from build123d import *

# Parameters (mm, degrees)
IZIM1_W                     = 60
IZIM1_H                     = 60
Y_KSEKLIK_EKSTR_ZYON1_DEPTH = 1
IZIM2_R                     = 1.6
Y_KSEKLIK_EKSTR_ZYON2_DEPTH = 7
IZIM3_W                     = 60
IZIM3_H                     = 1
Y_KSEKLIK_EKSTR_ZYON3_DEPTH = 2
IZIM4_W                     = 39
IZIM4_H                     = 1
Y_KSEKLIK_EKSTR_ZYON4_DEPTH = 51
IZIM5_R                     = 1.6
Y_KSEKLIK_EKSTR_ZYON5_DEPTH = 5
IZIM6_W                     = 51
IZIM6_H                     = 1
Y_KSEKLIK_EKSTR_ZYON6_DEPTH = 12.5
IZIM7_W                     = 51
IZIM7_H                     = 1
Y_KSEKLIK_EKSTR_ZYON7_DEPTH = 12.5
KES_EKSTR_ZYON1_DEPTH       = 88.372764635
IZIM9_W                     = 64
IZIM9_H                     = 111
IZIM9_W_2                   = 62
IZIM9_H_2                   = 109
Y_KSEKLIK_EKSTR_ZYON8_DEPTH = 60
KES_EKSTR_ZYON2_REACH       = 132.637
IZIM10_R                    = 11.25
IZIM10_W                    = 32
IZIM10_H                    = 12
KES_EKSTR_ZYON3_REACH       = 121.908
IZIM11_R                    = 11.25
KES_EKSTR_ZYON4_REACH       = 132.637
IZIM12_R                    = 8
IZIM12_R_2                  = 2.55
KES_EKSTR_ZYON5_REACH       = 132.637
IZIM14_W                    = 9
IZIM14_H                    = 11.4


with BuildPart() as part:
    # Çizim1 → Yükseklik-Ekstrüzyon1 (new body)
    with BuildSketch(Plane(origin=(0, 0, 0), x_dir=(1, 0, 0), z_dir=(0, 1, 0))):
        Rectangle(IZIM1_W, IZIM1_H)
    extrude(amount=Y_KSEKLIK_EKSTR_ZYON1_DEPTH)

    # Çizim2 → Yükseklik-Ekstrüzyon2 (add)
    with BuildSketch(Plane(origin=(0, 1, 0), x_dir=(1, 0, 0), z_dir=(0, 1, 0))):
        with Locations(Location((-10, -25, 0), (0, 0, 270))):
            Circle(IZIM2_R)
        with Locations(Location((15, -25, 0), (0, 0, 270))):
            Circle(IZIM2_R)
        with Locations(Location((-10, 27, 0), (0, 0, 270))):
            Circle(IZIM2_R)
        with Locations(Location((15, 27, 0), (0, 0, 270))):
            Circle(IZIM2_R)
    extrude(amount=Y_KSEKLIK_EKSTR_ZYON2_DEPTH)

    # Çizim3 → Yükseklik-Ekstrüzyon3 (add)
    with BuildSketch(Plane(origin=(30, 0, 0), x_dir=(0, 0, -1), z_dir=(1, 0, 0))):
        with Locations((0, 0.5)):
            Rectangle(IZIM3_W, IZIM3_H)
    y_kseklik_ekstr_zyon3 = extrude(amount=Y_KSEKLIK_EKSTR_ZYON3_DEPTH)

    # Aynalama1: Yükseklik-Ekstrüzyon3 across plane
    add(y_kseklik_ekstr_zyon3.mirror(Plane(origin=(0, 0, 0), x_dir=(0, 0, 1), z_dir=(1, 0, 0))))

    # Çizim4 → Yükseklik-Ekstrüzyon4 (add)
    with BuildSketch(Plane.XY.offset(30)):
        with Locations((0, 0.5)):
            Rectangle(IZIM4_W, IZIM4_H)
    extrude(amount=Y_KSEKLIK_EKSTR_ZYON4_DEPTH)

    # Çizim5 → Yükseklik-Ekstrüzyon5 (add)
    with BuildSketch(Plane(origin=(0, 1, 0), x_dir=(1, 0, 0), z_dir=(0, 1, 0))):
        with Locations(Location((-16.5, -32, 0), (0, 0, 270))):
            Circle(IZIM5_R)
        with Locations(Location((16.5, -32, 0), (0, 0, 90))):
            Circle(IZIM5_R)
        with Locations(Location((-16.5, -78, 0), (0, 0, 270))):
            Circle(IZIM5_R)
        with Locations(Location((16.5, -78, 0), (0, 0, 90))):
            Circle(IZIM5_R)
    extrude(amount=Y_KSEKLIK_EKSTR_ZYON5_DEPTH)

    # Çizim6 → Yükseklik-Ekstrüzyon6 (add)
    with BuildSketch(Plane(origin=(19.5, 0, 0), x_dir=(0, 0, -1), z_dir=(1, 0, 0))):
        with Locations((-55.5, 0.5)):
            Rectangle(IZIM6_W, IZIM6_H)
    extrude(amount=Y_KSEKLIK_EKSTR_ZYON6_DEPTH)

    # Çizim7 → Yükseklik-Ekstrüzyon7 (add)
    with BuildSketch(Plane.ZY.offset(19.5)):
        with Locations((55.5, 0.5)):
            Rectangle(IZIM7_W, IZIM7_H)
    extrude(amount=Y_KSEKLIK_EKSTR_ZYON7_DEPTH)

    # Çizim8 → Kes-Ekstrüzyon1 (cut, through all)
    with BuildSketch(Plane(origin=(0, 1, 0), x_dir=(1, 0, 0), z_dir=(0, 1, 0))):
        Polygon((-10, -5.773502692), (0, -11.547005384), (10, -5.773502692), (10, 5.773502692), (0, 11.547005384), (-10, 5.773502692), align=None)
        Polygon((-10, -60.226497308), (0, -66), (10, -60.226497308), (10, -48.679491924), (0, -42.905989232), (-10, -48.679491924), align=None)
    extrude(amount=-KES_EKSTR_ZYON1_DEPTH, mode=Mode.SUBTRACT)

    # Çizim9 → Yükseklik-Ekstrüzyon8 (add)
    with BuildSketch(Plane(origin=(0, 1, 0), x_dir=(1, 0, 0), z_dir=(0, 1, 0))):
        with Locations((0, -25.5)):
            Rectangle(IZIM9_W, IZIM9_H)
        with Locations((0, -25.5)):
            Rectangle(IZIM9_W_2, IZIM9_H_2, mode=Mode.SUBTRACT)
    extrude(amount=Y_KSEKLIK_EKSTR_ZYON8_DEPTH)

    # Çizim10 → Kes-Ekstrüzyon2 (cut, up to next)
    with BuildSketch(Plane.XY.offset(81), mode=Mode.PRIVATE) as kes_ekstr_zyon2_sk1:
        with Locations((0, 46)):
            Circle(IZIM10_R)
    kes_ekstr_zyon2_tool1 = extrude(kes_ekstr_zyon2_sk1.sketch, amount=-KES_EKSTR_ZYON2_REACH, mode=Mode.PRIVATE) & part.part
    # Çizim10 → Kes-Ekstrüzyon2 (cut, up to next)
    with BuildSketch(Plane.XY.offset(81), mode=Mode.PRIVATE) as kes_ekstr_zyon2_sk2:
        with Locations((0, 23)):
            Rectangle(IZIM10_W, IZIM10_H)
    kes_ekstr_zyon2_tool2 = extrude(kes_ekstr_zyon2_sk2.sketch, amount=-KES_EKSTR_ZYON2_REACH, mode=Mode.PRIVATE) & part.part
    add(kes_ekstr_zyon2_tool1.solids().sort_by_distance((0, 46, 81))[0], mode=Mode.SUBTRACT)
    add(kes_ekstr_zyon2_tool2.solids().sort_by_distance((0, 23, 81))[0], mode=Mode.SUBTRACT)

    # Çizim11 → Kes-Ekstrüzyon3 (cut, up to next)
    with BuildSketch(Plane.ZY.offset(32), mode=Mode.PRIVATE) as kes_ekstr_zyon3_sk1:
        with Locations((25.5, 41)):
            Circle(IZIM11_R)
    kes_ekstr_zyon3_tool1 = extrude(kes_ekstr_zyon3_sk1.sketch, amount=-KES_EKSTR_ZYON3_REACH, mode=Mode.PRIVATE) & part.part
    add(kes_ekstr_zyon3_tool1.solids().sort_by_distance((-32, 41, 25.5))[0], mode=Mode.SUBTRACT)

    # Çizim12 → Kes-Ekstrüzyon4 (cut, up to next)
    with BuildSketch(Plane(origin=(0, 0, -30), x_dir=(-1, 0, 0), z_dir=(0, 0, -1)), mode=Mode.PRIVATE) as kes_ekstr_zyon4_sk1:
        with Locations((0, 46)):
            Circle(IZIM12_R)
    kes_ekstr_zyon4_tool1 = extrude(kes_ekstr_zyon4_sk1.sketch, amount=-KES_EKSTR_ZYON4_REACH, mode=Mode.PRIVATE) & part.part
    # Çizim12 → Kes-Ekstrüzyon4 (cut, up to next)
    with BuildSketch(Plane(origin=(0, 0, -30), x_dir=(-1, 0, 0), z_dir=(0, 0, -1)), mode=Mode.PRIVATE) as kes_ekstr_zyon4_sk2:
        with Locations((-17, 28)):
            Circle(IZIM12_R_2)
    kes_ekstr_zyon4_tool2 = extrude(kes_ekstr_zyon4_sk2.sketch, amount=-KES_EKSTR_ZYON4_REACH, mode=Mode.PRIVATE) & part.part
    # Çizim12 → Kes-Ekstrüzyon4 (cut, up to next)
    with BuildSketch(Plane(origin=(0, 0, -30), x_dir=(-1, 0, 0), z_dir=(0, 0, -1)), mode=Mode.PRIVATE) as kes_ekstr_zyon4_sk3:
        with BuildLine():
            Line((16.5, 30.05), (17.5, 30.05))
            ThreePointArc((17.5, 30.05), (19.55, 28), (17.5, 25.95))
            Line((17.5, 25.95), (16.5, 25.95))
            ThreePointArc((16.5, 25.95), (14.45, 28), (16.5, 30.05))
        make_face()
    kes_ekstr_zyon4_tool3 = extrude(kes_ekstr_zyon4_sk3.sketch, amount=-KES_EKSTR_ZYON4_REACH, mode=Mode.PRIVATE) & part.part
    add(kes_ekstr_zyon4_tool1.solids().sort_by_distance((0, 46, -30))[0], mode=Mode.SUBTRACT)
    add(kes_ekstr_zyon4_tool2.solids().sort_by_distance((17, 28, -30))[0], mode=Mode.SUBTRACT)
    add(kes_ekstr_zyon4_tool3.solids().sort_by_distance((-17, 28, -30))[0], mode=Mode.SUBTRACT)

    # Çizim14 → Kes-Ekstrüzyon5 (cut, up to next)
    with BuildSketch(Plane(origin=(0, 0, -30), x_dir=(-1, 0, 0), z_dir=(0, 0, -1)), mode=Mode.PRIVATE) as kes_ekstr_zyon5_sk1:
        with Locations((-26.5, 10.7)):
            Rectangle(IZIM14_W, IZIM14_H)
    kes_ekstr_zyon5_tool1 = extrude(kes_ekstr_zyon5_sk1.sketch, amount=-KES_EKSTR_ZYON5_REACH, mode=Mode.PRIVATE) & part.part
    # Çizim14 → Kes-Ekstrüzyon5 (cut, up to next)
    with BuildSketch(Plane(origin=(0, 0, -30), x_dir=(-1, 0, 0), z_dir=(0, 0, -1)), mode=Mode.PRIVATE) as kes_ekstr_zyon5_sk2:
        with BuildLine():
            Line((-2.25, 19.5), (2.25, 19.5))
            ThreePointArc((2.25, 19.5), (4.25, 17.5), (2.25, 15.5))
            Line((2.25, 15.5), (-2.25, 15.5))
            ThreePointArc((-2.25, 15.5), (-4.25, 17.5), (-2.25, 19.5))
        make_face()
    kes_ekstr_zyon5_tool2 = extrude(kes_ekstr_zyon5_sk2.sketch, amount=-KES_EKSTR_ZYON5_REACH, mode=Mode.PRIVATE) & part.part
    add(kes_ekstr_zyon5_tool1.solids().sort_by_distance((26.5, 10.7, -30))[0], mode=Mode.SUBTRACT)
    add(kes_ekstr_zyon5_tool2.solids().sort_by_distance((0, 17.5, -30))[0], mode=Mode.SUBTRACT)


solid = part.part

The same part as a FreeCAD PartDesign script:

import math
import FreeCAD as App
import Part
import Sketcher

V = App.Vector
Q = App.Units.Quantity


def add_polygon(sketch, points):
    """Adds a closed chain of lines whose ends are joined by coincident constraints."""
    first, n = sketch.GeometryCount, len(points)
    for a, b in zip(points, points[1:] + points[:1]):
        sketch.addGeometry(Part.LineSegment(App.Vector(*a, 0), App.Vector(*b, 0)), False)
    for i in range(n):
        sketch.addConstraint(Sketcher.Constraint("Coincident", first + i, 2, first + (i + 1) % n, 1))

doc = App.newDocument("Part")
params = doc.addObject("Spreadsheet::Sheet", "Params")
for row, (alias, value) in enumerate([
    ("sketch1_width", "60 mm"),
    ("pad1_length", "1 mm"),
    ("sketch2_diameter", "3.2 mm"),
    ("pad2_length", "7 mm"),
    ("sketch3_width", "1 mm"),
    ("sketch3_height", "60 mm"),
    ("pad3_length", "2 mm"),
    ("sketch4_width", "39 mm"),
    ("sketch4_height", "1 mm"),
    ("pad4_length", "51 mm"),
    ("sketch5_diameter", "3.2 mm"),
    ("pad5_length", "5 mm"),
    ("sketch6_width", "1 mm"),
    ("sketch6_height", "51 mm"),
    ("pad6_length", "12.5 mm"),
    ("sketch7_width", "1 mm"),
    ("sketch7_height", "51 mm"),
    ("pad7_length", "12.5 mm"),
    ("sketch9_width", "64 mm"),
    ("sketch9_width2", "62 mm"),
    ("sketch9_height", "111 mm"),
    ("sketch9_height2", "109 mm"),
    ("pad8_length", "60 mm"),
    ("sketch10_diameter", "22.5 mm"),
    ("sketch11_width", "32 mm"),
    ("sketch11_height", "12 mm"),
    ("sketch12_diameter", "22.5 mm"),
    ("sketch13_diameter", "16 mm"),
    ("sketch14_diameter", "5.1 mm"),
    ("sketch15_width", "1 mm"),
    ("sketch15_radius", "2.05 mm"),
    ("sketch16_width", "9 mm"),
    ("sketch16_height", "11.4 mm"),
    ("sketch17_radius", "2 mm"),
    ("sketch17_width", "4.5 mm"),
], start=1):
    params.set(f"A{row}", alias)
    params.set(f"B{row}", "=" + value)
    params.setAlias(f"B{row}", alias)

body = doc.addObject("PartDesign::Body", "Body")

# Sketch on XZ plane
sketch1 = body.newObject("Sketcher::SketchObject", "Sketch")
sketch1.AttachmentSupport = (doc.getObject("XZ_Plane"), [""])
sketch1.MapMode = "FlatFace"
add_polygon(sketch1, [(-30, -30), (-30, 30), (30, 30), (30, -30)])  # lines 0-3
sketch1.addConstraint(Sketcher.Constraint("Vertical", 0))
sketch1.addConstraint(Sketcher.Constraint("Horizontal", 1))
sketch1.addConstraint(Sketcher.Constraint("Vertical", 2))
sketch1.addConstraint(Sketcher.Constraint("Horizontal", 3))
sketch1.addConstraint(Sketcher.Constraint("Symmetric", 0, 2, 2, 2, -1, 1))
sketch1.addConstraint(Sketcher.Constraint("Equal", 3, 0))
sketch1.addConstraint(Sketcher.Constraint("DistanceX", 1, 1, 1, 2, 60.0))
sketch1.setExpression("Constraints[10]", "Params.sketch1_width")
pad1 = body.newObject("PartDesign::Pad", "Pad")
pad1.Profile = sketch1
pad1.setExpression("Length", "Params.pad1_length")
pad1.Reversed = True

# Sketch on XZ plane
sketch2 = body.newObject("Sketcher::SketchObject", "Sketch001")
sketch2.AttachmentSupport = (doc.getObject("XZ_Plane"), [""])
sketch2.MapMode = "FlatFace"
sketch2.AttachmentOffset = App.Placement(V(0, 0, -1), App.Rotation())
sketch2.addGeometry(Part.Circle(V(-10, 25, 0), V(0, 0, 1), 1.6), False)
sketch2.addGeometry(Part.Circle(V(15, 25, 0), V(0, 0, 1), 1.6), False)
sketch2.addGeometry(Part.Circle(V(-10, -27, 0), V(0, 0, 1), 1.6), False)
sketch2.addGeometry(Part.Circle(V(15, -27, 0), V(0, 0, 1), 1.6), False)
sketch2.addConstraint(Sketcher.Constraint("Equal", 0, 1))
sketch2.addConstraint(Sketcher.Constraint("Equal", 1, 2))
sketch2.addConstraint(Sketcher.Constraint("Equal", 2, 3))
sketch2.addConstraint(Sketcher.Constraint("Horizontal", 0, 3, 1, 3))
sketch2.addConstraint(Sketcher.Constraint("Horizontal", 2, 3, 3, 3))
sketch2.addConstraint(Sketcher.Constraint("Vertical", 0, 3, 2, 3))
sketch2.addConstraint(Sketcher.Constraint("Vertical", 1, 3, 3, 3))
sketch2.addConstraint(Sketcher.Constraint("Diameter", 0, 3.2))
sketch2.addConstraint(Sketcher.Constraint("DistanceX", 0, 3, -1, 1, 10.0))
sketch2.addConstraint(Sketcher.Constraint("DistanceY", -1, 1, 0, 3, 25.0))
sketch2.addConstraint(Sketcher.Constraint("DistanceX", -1, 1, 1, 3, 15.0))
sketch2.addConstraint(Sketcher.Constraint("DistanceY", 2, 3, -1, 1, 27.0))
sketch2.setExpression("Constraints[7]", "Params.sketch2_diameter")
pad2 = body.newObject("PartDesign::Pad", "Pad001")
pad2.Profile = sketch2
pad2.setExpression("Length", "Params.pad2_length")
pad2.Reversed = True

# Sketch on YZ plane
sketch3 = body.newObject("Sketcher::SketchObject", "Sketch002")
sketch3.AttachmentSupport = (doc.getObject("YZ_Plane"), [""])
sketch3.MapMode = "FlatFace"
sketch3.AttachmentOffset = App.Placement(V(0, 0, 30), App.Rotation())
add_polygon(sketch3, [(1, 30), (0, 30), (0, -30), (1, -30)])  # lines 0-3
sketch3.addConstraint(Sketcher.Constraint("Horizontal", 0))
sketch3.addConstraint(Sketcher.Constraint("Vertical", 1))
sketch3.addConstraint(Sketcher.Constraint("Horizontal", 2))
sketch3.addConstraint(Sketcher.Constraint("Vertical", 3))
sketch3.addConstraint(Sketcher.Constraint("Symmetric", 0, 2, 1, 2, -1, 1))
sketch3.addConstraint(Sketcher.Constraint("DistanceX", 0, 2, 0, 1, 1.0))
sketch3.addConstraint(Sketcher.Constraint("DistanceY", 1, 2, 1, 1, 60.0))
sketch3.setExpression("Constraints[9]", "Params.sketch3_width")
sketch3.setExpression("Constraints[10]", "Params.sketch3_height")
pad3 = body.newObject("PartDesign::Pad", "Pad002")
pad3.Profile = sketch3
pad3.setExpression("Length", "Params.pad3_length")
doc.recompute()

mirrored = body.newObject("PartDesign::Mirrored", "Mirrored")
mirrored.Originals = [pad3]
mirrored.MirrorPlane = (doc.getObject("YZ_Plane"), [""])
body.Tip = mirrored

# Sketch on XY plane
sketch4 = body.newObject("Sketcher::SketchObject", "Sketch003")
sketch4.AttachmentSupport = (doc.getObject("XY_Plane"), [""])
sketch4.MapMode = "FlatFace"
sketch4.AttachmentOffset = App.Placement(V(0, 0, 30), App.Rotation())
add_polygon(sketch4, [(-19.5, 1), (-19.5, 0), (19.5, 0), (19.5, 1)])  # lines 0-3
sketch4.addConstraint(Sketcher.Constraint("Vertical", 0))
sketch4.addConstraint(Sketcher.Constraint("Horizontal", 1))
sketch4.addConstraint(Sketcher.Constraint("Vertical", 2))
sketch4.addConstraint(Sketcher.Constraint("Horizontal", 3))
sketch4.addConstraint(Sketcher.Constraint("Symmetric", 0, 2, 1, 2, -1, 1))
sketch4.addConstraint(Sketcher.Constraint("DistanceX", 1, 1, 1, 2, 39.0))
sketch4.addConstraint(Sketcher.Constraint("DistanceY", 0, 2, 0, 1, 1.0))
sketch4.setExpression("Constraints[9]", "Params.sketch4_width")
sketch4.setExpression("Constraints[10]", "Params.sketch4_height")
pad4 = body.newObject("PartDesign::Pad", "Pad003")
pad4.Profile = sketch4
pad4.setExpression("Length", "Params.pad4_length")

# Sketch on XZ plane
sketch5 = body.newObject("Sketcher::SketchObject", "Sketch004")
sketch5.AttachmentSupport = (doc.getObject("XZ_Plane"), [""])
sketch5.MapMode = "FlatFace"
sketch5.AttachmentOffset = App.Placement(V(0, 0, -1), App.Rotation())
sketch5.addGeometry(Part.Circle(V(-16.5, 32, 0), V(0, 0, 1), 1.6), False)
sketch5.addGeometry(Part.Circle(V(16.5, 32, 0), V(0, 0, 1), 1.6), False)
sketch5.addGeometry(Part.Circle(V(-16.5, 78, 0), V(0, 0, 1), 1.6), False)
sketch5.addGeometry(Part.Circle(V(16.5, 78, 0), V(0, 0, 1), 1.6), False)
sketch5.addConstraint(Sketcher.Constraint("Equal", 0, 1))
sketch5.addConstraint(Sketcher.Constraint("Equal", 1, 2))
sketch5.addConstraint(Sketcher.Constraint("Equal", 2, 3))
sketch5.addConstraint(Sketcher.Constraint("Symmetric", 0, 3, 1, 3, -2))
sketch5.addConstraint(Sketcher.Constraint("Symmetric", 2, 3, 3, 3, -2))
sketch5.addConstraint(Sketcher.Constraint("Vertical", 0, 3, 2, 3))
sketch5.addConstraint(Sketcher.Constraint("Diameter", 0, 3.2))
sketch5.addConstraint(Sketcher.Constraint("DistanceY", -1, 1, 0, 3, 32.0))
sketch5.addConstraint(Sketcher.Constraint("DistanceY", -1, 1, 2, 3, 78.0))
sketch5.addConstraint(Sketcher.Constraint("DistanceX", 0, 3, 1, 3, 33.0))
sketch5.setExpression("Constraints[6]", "Params.sketch5_diameter")
pad5 = body.newObject("PartDesign::Pad", "Pad004")
pad5.Profile = sketch5
pad5.setExpression("Length", "Params.pad5_length")
pad5.Reversed = True

# Sketch on YZ plane
sketch6 = body.newObject("Sketcher::SketchObject", "Sketch005")
sketch6.AttachmentSupport = (doc.getObject("YZ_Plane"), [""])
sketch6.MapMode = "FlatFace"
sketch6.AttachmentOffset = App.Placement(V(0, 0, 19.5), App.Rotation())
add_polygon(sketch6, [(1, 81), (0, 81), (0, 30), (1, 30)])  # lines 0-3
sketch6.addConstraint(Sketcher.Constraint("Horizontal", 0))
sketch6.addConstraint(Sketcher.Constraint("Vertical", 1))
sketch6.addConstraint(Sketcher.Constraint("Horizontal", 2))
sketch6.addConstraint(Sketcher.Constraint("Vertical", 3))
sketch6.addConstraint(Sketcher.Constraint("PointOnObject", 0, 2, -2))
sketch6.addConstraint(Sketcher.Constraint("DistanceX", 0, 2, 0, 1, 1.0))
sketch6.addConstraint(Sketcher.Constraint("DistanceY", 1, 2, 1, 1, 51.0))
sketch6.addConstraint(Sketcher.Constraint("DistanceY", -1, 1, 0, 2, 81.0))
sketch6.setExpression("Constraints[9]", "Params.sketch6_width")
sketch6.setExpression("Constraints[10]", "Params.sketch6_height")
pad6 = body.newObject("PartDesign::Pad", "Pad005")
pad6.Profile = sketch6
pad6.setExpression("Length", "Params.pad6_length")

# Sketch on YZ plane
sketch7 = body.newObject("Sketcher::SketchObject", "Sketch006")
sketch7.AttachmentSupport = (doc.getObject("YZ_Plane"), [""])
sketch7.MapMode = "FlatFace"
sketch7.AttachmentOffset = App.Placement(V(0, 0, -19.5), App.Rotation())
add_polygon(sketch7, [(1, 30), (0, 30), (0, 81), (1, 81)])  # lines 0-3
sketch7.addConstraint(Sketcher.Constraint("Horizontal", 0))
sketch7.addConstraint(Sketcher.Constraint("Vertical", 1))
sketch7.addConstraint(Sketcher.Constraint("Horizontal", 2))
sketch7.addConstraint(Sketcher.Constraint("Vertical", 3))
sketch7.addConstraint(Sketcher.Constraint("PointOnObject", 0, 2, -2))
sketch7.addConstraint(Sketcher.Constraint("DistanceX", 0, 2, 0, 1, 1.0))
sketch7.addConstraint(Sketcher.Constraint("DistanceY", 1, 1, 1, 2, 51.0))
sketch7.addConstraint(Sketcher.Constraint("DistanceY", -1, 1, 0, 2, 30.0))
sketch7.setExpression("Constraints[9]", "Params.sketch7_width")
sketch7.setExpression("Constraints[10]", "Params.sketch7_height")
pad7 = body.newObject("PartDesign::Pad", "Pad006")
pad7.Profile = sketch7
pad7.setExpression("Length", "Params.pad7_length")
pad7.Reversed = True

# Sketch on XZ plane
sketch8 = body.newObject("Sketcher::SketchObject", "Sketch007")
sketch8.AttachmentSupport = (doc.getObject("XZ_Plane"), [""])
sketch8.MapMode = "FlatFace"
sketch8.AttachmentOffset = App.Placement(V(0, 0, -1), App.Rotation())
add_polygon(sketch8, [(-10, 6), (0, 12), (10, 6), (10, -6), (0, -12), (-10, -6)])  # lines 0-5
add_polygon(sketch8, [(-10, 60), (0, 66), (10, 60), (10, 49), (0, 43), (-10, 49)])  # lines 6-11
sketch8.addConstraint(Sketcher.Constraint("Vertical", 2))
sketch8.addConstraint(Sketcher.Constraint("Vertical", 5))
sketch8.addConstraint(Sketcher.Constraint("Vertical", 8))
sketch8.addConstraint(Sketcher.Constraint("Vertical", 11))
sketch8.addConstraint(Sketcher.Constraint("Symmetric", 0, 2, 3, 2, -1, 1))
sketch8.addConstraint(Sketcher.Constraint("Symmetric", 1, 2, 4, 2, -1, 1))
sketch8.addConstraint(Sketcher.Constraint("Symmetric", 8, 2, 10, 2, -2))
sketch8.addConstraint(Sketcher.Constraint("PointOnObject", 0, 2, -2))
sketch8.addConstraint(Sketcher.Constraint("PointOnObject", 6, 2, -2))
sketch8.addConstraint(Sketcher.Constraint("PointOnObject", 9, 2, -2))
sketch8.addConstraint(Sketcher.Constraint("Parallel", 0, 3))
sketch8.addConstraint(Sketcher.Constraint("Parallel", 3, 6))
sketch8.addConstraint(Sketcher.Constraint("Parallel", 4, 7))
sketch8.addConstraint(Sketcher.Constraint("Parallel", 6, 9))
sketch8.addConstraint(Sketcher.Constraint("Parallel", 7, 10))
sketch8.addConstraint(Sketcher.Constraint("Vertical", 2, 2, 7, 2))
sketch8.addConstraint(Sketcher.Constraint("Equal", 5, 8))
sketch8.addConstraint(Sketcher.Constraint("Angle", 0, Q("30 deg")))
sketch8.addConstraint(Sketcher.Constraint("DistanceX", -1, 1, 1, 2, 10.0))
sketch8.addConstraint(Sketcher.Constraint("DistanceY", -1, 1, 6, 2, 66.0))
sketch8.addConstraint(Sketcher.Constraint("DistanceY", 2, 2, 7, 2, 66.0))
pocket1 = body.newObject("PartDesign::Pocket", "Pocket")
pocket1.Profile = sketch8
pocket1.Type = "ThroughAll"
pocket1.Reversed = True

# Sketch on XZ plane
sketch9 = body.newObject("Sketcher::SketchObject", "Sketch008")
sketch9.AttachmentSupport = (doc.getObject("XZ_Plane"), [""])
sketch9.MapMode = "FlatFace"
sketch9.AttachmentOffset = App.Placement(V(0, 0, -1), App.Rotation())
add_polygon(sketch9, [(-32, -30), (-32, 81), (32, 81), (32, -30)])  # lines 0-3
add_polygon(sketch9, [(31, 80), (-31, 80), (-31, -29), (31, -29)])  # lines 4-7
sketch9.addConstraint(Sketcher.Constraint("Vertical", 0))
sketch9.addConstraint(Sketcher.Constraint("Horizontal", 1))
sketch9.addConstraint(Sketcher.Constraint("Vertical", 2))
sketch9.addConstraint(Sketcher.Constraint("Horizontal", 3))
sketch9.addConstraint(Sketcher.Constraint("Horizontal", 4))
sketch9.addConstraint(Sketcher.Constraint("Vertical", 5))
sketch9.addConstraint(Sketcher.Constraint("Horizontal", 6))
sketch9.addConstraint(Sketcher.Constraint("Vertical", 7))
sketch9.addConstraint(Sketcher.Constraint("DistanceX", 1, 1, 1, 2, 64.0))
sketch9.addConstraint(Sketcher.Constraint("DistanceX", 4, 2, 4, 1, 62.0))
sketch9.addConstraint(Sketcher.Constraint("DistanceY", 0, 1, 0, 2, 111.0))
sketch9.addConstraint(Sketcher.Constraint("DistanceY", 5, 2, 5, 1, 109.0))
sketch9.addConstraint(Sketcher.Constraint("DistanceX", 0, 2, -1, 1, 32.0))
sketch9.addConstraint(Sketcher.Constraint("DistanceY", -1, 1, 0, 2, 81.0))
sketch9.addConstraint(Sketcher.Constraint("DistanceX", 4, 2, -1, 1, 31.0))
sketch9.addConstraint(Sketcher.Constraint("DistanceY", -1, 1, 4, 2, 80.0))
sketch9.setExpression("Constraints[16]", "Params.sketch9_width")
sketch9.setExpression("Constraints[17]", "Params.sketch9_width2")
sketch9.setExpression("Constraints[18]", "Params.sketch9_height")
sketch9.setExpression("Constraints[19]", "Params.sketch9_height2")
pad8 = body.newObject("PartDesign::Pad", "Pad007")
pad8.Profile = sketch9
pad8.setExpression("Length", "Params.pad8_length")
pad8.Reversed = True

# Sketch on XY plane
sketch10 = body.newObject("Sketcher::SketchObject", "Sketch009")
sketch10.AttachmentSupport = (doc.getObject("XY_Plane"), [""])
sketch10.MapMode = "FlatFace"
sketch10.AttachmentOffset = App.Placement(V(0, 0, 81), App.Rotation())
sketch10.addGeometry(Part.Circle(V(0, 46, 0), V(0, 0, 1), 11), False)
sketch10.addConstraint(Sketcher.Constraint("PointOnObject", 0, 3, -2))
sketch10.addConstraint(Sketcher.Constraint("Diameter", 0, 22.5))
sketch10.addConstraint(Sketcher.Constraint("DistanceY", -1, 1, 0, 3, 46.0))
sketch10.setExpression("Constraints[1]", "Params.sketch10_diameter")
pocket2 = body.newObject("PartDesign::Pocket", "Pocket001")
pocket2.Profile = sketch10
pocket2.Type = "UpToFirst"

# Sketch on XY plane
sketch11 = body.newObject("Sketcher::SketchObject", "Sketch010")
sketch11.AttachmentSupport = (doc.getObject("XY_Plane"), [""])
sketch11.MapMode = "FlatFace"
sketch11.AttachmentOffset = App.Placement(V(0, 0, 81), App.Rotation())
add_polygon(sketch11, [(-16, 29), (-16, 17), (16, 17), (16, 29)])  # lines 0-3
sketch11.addConstraint(Sketcher.Constraint("Vertical", 0))
sketch11.addConstraint(Sketcher.Constraint("Horizontal", 1))
sketch11.addConstraint(Sketcher.Constraint("Vertical", 2))
sketch11.addConstraint(Sketcher.Constraint("Horizontal", 3))
sketch11.addConstraint(Sketcher.Constraint("DistanceX", 1, 1, 1, 2, 32.0))
sketch11.addConstraint(Sketcher.Constraint("DistanceY", 0, 2, 0, 1, 12.0))
sketch11.addConstraint(Sketcher.Constraint("DistanceX", 0, 2, -1, 1, 16.0))
sketch11.addConstraint(Sketcher.Constraint("DistanceY", -1, 1, 0, 2, 17.0))
sketch11.setExpression("Constraints[8]", "Params.sketch11_width")
sketch11.setExpression("Constraints[9]", "Params.sketch11_height")
pocket3 = body.newObject("PartDesign::Pocket", "Pocket002")
pocket3.Profile = sketch11
pocket3.Type = "UpToFirst"

# Sketch on YZ plane
sketch12 = body.newObject("Sketcher::SketchObject", "Sketch011")
sketch12.AttachmentSupport = (doc.getObject("YZ_Plane"), [""])
sketch12.MapMode = "FlatFace"
sketch12.AttachmentOffset = App.Placement(V(0, 0, -32), App.Rotation())
sketch12.addGeometry(Part.Circle(V(41, 26, 0), V(0, 0, 1), 11), False)
sketch12.addConstraint(Sketcher.Constraint("Diameter", 0, 22.5))
sketch12.addConstraint(Sketcher.Constraint("DistanceX", -1, 1, 0, 3, 41.0))
sketch12.addConstraint(Sketcher.Constraint("DistanceY", -1, 1, 0, 3, 25.5))
sketch12.setExpression("Constraints[0]", "Params.sketch12_diameter")
pocket4 = body.newObject("PartDesign::Pocket", "Pocket003")
pocket4.Profile = sketch12
pocket4.Type = "UpToFirst"
pocket4.Reversed = True

# Sketch on XY plane
sketch13 = body.newObject("Sketcher::SketchObject", "Sketch012")
sketch13.AttachmentSupport = (doc.getObject("XY_Plane"), [""])
sketch13.MapMode = "FlatFace"
sketch13.AttachmentOffset = App.Placement(V(0, 0, -30), App.Rotation())
sketch13.addGeometry(Part.Circle(V(0, 46, 0), V(0, 0, 1), 8), False)
sketch13.addConstraint(Sketcher.Constraint("PointOnObject", 0, 3, -2))
sketch13.addConstraint(Sketcher.Constraint("Diameter", 0, 16.0))
sketch13.addConstraint(Sketcher.Constraint("DistanceY", -1, 1, 0, 3, 46.0))
sketch13.setExpression("Constraints[1]", "Params.sketch13_diameter")
pocket5 = body.newObject("PartDesign::Pocket", "Pocket004")
pocket5.Profile = sketch13
pocket5.Type = "UpToFirst"
pocket5.Reversed = True

# Sketch on XY plane
sketch14 = body.newObject("Sketcher::SketchObject", "Sketch013")
sketch14.AttachmentSupport = (doc.getObject("XY_Plane"), [""])
sketch14.MapMode = "FlatFace"
sketch14.AttachmentOffset = App.Placement(V(0, 0, -30), App.Rotation())
sketch14.addGeometry(Part.Circle(V(17, 28, 0), V(0, 0, 1), 2.5), False)
sketch14.addConstraint(Sketcher.Constraint("Diameter", 0, 5.1))
sketch14.addConstraint(Sketcher.Constraint("DistanceX", -1, 1, 0, 3, 17.0))
sketch14.addConstraint(Sketcher.Constraint("DistanceY", -1, 1, 0, 3, 28.0))
sketch14.setExpression("Constraints[0]", "Params.sketch14_diameter")
pocket6 = body.newObject("PartDesign::Pocket", "Pocket005")
pocket6.Profile = sketch14
pocket6.Type = "UpToFirst"
pocket6.Reversed = True

# Sketch on XY plane
sketch15 = body.newObject("Sketcher::SketchObject", "Sketch014")
sketch15.AttachmentSupport = (doc.getObject("XY_Plane"), [""])
sketch15.MapMode = "FlatFace"
sketch15.AttachmentOffset = App.Placement(V(0, 0, -30), App.Rotation())
sketch15.addGeometry(Part.LineSegment(V(-17.5, 30.1, 0), V(-16.5, 30.1, 0)), False)
sketch15.addGeometry(Part.ArcOfCircle(Part.Circle(V(-16.5, 28, 0), V(0, 0, 1), 2), math.radians(-90), math.radians(90)), False)
sketch15.addGeometry(Part.LineSegment(V(-16.5, 25.9, 0), V(-17.5, 25.9, 0)), False)
sketch15.addGeometry(Part.ArcOfCircle(Part.Circle(V(-17.5, 28, 0), V(0, 0, 1), 2), math.radians(90), math.radians(270)), False)
sketch15.addConstraint(Sketcher.Constraint("Tangent", 0, 2, 1, 2))
sketch15.addConstraint(Sketcher.Constraint("Tangent", 1, 1, 2, 1))
sketch15.addConstraint(Sketcher.Constraint("Tangent", 2, 2, 3, 2))
sketch15.addConstraint(Sketcher.Constraint("Tangent", 3, 1, 0, 1))
sketch15.addConstraint(Sketcher.Constraint("Horizontal", 0))
sketch15.addConstraint(Sketcher.Constraint("Horizontal", 2))
sketch15.addConstraint(Sketcher.Constraint("DistanceX", 0, 1, 0, 2, 1.0))
sketch15.addConstraint(Sketcher.Constraint("Radius", 1, 2.05))
sketch15.addConstraint(Sketcher.Constraint("DistanceY", -1, 1, 1, 3, 28.0))
sketch15.addConstraint(Sketcher.Constraint("DistanceX", 1, 3, -1, 1, 16.5))
sketch15.setExpression("Constraints[6]", "Params.sketch15_width")
sketch15.setExpression("Constraints[7]", "Params.sketch15_radius")
pocket7 = body.newObject("PartDesign::Pocket", "Pocket006")
pocket7.Profile = sketch15
pocket7.Type = "UpToFirst"
pocket7.Reversed = True

# Sketch on XY plane
sketch16 = body.newObject("Sketcher::SketchObject", "Sketch015")
sketch16.AttachmentSupport = (doc.getObject("XY_Plane"), [""])
sketch16.MapMode = "FlatFace"
sketch16.AttachmentOffset = App.Placement(V(0, 0, -30), App.Rotation())
add_polygon(sketch16, [(31, 16), (31, 5), (22, 5), (22, 16)])  # lines 0-3
sketch16.addConstraint(Sketcher.Constraint("Vertical", 0))
sketch16.addConstraint(Sketcher.Constraint("Horizontal", 1))
sketch16.addConstraint(Sketcher.Constraint("Vertical", 2))
sketch16.addConstraint(Sketcher.Constraint("Horizontal", 3))
sketch16.addConstraint(Sketcher.Constraint("DistanceX", 1, 2, 1, 1, 9.0))
sketch16.addConstraint(Sketcher.Constraint("DistanceY", 0, 2, 0, 1, 11.4))
sketch16.addConstraint(Sketcher.Constraint("DistanceX", -1, 1, 0, 2, 31.0))
sketch16.addConstraint(Sketcher.Constraint("DistanceY", -1, 1, 0, 2, 5.0))
sketch16.setExpression("Constraints[8]", "Params.sketch16_width")
sketch16.setExpression("Constraints[9]", "Params.sketch16_height")
pocket8 = body.newObject("PartDesign::Pocket", "Pocket007")
pocket8.Profile = sketch16
pocket8.Type = "UpToFirst"
pocket8.Reversed = True

# Sketch on XY plane
sketch17 = body.newObject("Sketcher::SketchObject", "Sketch016")
sketch17.AttachmentSupport = (doc.getObject("XY_Plane"), [""])
sketch17.MapMode = "FlatFace"
sketch17.AttachmentOffset = App.Placement(V(0, 0, -30), App.Rotation())
sketch17.addGeometry(Part.LineSegment(V(-2.2, 19.5, 0), V(2.2, 19.5, 0)), False)
sketch17.addGeometry(Part.ArcOfCircle(Part.Circle(V(2.2, 17.5, 0), V(0, 0, 1), 2), math.radians(-90), math.radians(90)), False)
sketch17.addGeometry(Part.LineSegment(V(2.2, 15.5, 0), V(-2.2, 15.5, 0)), False)
sketch17.addGeometry(Part.ArcOfCircle(Part.Circle(V(-2.2, 17.5, 0), V(0, 0, 1), 2), math.radians(90), math.radians(270)), False)
sketch17.addConstraint(Sketcher.Constraint("Tangent", 0, 2, 1, 2))
sketch17.addConstraint(Sketcher.Constraint("Tangent", 1, 1, 2, 1))
sketch17.addConstraint(Sketcher.Constraint("Tangent", 2, 2, 3, 2))
sketch17.addConstraint(Sketcher.Constraint("Tangent", 3, 1, 0, 1))
sketch17.addConstraint(Sketcher.Constraint("Horizontal", 0))
sketch17.addConstraint(Sketcher.Constraint("Horizontal", 2))
sketch17.addConstraint(Sketcher.Constraint("Radius", 1, 2.0))
sketch17.addConstraint(Sketcher.Constraint("DistanceX", 0, 1, 0, 2, 4.5))
sketch17.addConstraint(Sketcher.Constraint("DistanceY", -1, 1, 1, 3, 17.5))
sketch17.addConstraint(Sketcher.Constraint("DistanceX", -1, 1, 1, 3, 2.25))
sketch17.setExpression("Constraints[6]", "Params.sketch17_radius")
sketch17.setExpression("Constraints[7]", "Params.sketch17_width")
pocket9 = body.newObject("PartDesign::Pocket", "Pocket008")
pocket9.Profile = sketch17
pocket9.Type = "UpToFirst"
pocket9.Reversed = True

doc.recompute()
